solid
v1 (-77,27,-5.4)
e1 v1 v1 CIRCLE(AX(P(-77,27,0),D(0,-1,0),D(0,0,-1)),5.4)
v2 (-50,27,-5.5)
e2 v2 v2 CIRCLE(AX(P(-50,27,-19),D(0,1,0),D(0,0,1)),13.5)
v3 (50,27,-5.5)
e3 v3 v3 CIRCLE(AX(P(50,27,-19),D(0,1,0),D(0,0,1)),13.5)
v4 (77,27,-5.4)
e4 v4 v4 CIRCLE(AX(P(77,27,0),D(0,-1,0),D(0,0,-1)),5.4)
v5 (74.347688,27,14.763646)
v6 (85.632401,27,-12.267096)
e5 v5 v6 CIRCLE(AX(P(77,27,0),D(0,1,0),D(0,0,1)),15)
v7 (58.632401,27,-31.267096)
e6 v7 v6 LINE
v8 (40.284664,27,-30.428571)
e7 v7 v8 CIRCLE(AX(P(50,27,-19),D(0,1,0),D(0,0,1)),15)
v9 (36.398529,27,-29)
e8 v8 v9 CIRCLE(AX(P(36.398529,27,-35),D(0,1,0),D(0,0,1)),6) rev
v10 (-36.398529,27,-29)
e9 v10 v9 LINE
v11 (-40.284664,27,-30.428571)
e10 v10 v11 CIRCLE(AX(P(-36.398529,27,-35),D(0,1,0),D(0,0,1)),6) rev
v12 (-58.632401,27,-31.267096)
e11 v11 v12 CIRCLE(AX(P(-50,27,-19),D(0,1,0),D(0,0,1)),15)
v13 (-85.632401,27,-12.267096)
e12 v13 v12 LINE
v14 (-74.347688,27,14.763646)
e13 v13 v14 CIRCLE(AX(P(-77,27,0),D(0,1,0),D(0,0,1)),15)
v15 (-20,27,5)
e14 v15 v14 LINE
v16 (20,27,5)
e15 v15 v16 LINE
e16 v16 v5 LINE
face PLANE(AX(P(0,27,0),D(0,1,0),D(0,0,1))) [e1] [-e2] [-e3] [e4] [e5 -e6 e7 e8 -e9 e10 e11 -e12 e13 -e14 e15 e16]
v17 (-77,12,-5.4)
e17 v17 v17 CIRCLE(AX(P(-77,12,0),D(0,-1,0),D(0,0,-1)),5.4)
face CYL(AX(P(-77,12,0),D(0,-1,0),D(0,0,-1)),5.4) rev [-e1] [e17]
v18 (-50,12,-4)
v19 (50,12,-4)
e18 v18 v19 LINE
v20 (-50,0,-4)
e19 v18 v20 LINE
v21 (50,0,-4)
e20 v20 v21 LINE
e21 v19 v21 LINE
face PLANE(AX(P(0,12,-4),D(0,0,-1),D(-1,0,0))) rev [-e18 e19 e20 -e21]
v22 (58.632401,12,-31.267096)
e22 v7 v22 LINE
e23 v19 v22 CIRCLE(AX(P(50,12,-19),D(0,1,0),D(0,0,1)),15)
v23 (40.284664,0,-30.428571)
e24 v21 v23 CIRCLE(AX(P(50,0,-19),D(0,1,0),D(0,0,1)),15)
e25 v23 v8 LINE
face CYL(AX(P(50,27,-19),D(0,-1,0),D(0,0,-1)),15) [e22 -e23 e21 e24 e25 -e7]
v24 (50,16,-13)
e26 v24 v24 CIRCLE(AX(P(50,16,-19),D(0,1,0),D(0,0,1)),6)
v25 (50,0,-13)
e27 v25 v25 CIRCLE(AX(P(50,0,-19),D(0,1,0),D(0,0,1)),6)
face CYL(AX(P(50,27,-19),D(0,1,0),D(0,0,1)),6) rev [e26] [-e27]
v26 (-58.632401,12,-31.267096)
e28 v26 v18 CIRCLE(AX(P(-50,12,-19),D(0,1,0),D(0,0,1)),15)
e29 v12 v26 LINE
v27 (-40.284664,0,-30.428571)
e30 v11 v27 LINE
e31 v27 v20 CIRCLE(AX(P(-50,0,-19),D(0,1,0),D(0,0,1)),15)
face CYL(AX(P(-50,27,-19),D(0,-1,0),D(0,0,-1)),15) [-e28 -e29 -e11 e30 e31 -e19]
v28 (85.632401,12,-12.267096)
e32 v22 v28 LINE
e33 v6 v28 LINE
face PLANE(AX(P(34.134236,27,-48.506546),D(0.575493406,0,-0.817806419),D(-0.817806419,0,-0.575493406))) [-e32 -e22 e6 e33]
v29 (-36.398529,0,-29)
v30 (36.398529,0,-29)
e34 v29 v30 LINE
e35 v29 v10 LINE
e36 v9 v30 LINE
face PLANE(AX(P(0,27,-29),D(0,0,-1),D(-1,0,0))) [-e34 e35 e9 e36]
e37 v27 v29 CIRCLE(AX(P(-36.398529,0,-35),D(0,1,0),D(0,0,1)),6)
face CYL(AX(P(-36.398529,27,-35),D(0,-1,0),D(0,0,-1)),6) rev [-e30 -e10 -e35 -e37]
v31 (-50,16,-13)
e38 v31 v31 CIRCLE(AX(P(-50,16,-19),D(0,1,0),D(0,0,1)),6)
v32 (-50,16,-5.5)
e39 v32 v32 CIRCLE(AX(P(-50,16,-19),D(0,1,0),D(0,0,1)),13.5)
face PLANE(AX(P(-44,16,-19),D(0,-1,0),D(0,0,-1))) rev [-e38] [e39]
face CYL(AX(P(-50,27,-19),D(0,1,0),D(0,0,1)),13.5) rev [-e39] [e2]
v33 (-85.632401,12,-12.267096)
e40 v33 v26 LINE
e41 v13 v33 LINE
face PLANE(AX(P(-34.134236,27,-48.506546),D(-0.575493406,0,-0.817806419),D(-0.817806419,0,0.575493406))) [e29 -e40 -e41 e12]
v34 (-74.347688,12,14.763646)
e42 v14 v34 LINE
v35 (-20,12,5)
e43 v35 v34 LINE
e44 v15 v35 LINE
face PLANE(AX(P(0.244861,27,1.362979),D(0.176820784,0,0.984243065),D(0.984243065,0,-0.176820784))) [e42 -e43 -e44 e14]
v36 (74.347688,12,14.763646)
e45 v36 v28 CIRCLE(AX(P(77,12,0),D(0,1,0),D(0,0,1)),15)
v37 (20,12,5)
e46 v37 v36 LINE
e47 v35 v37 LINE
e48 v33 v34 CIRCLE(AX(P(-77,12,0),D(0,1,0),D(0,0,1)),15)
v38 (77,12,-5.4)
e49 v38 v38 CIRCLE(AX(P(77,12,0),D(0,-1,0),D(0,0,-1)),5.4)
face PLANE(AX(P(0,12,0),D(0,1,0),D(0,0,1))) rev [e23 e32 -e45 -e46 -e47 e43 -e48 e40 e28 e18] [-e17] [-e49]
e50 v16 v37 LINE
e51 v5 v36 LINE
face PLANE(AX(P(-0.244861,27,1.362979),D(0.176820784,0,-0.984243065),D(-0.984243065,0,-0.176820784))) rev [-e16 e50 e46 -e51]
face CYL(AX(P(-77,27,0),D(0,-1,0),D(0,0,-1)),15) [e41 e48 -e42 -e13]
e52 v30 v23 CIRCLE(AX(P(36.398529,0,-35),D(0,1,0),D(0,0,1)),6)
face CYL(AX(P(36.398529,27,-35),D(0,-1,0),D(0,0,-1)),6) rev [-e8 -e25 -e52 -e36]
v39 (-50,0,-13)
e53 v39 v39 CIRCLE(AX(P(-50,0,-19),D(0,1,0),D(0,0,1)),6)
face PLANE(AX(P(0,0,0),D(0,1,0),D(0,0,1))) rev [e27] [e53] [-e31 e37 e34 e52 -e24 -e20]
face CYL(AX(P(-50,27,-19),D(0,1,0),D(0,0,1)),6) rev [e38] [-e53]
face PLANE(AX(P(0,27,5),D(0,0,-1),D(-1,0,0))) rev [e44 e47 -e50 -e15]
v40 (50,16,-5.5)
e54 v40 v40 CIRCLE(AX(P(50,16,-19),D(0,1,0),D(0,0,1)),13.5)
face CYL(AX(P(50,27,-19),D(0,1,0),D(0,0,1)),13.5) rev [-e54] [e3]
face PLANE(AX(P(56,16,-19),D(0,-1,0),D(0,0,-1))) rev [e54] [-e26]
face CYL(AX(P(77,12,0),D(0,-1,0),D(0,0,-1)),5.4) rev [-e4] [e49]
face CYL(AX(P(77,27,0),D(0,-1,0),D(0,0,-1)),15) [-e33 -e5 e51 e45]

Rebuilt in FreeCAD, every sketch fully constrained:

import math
import FreeCAD as App
import Part
import Sketcher
Q = App.Units.Quantity


def edges_at(feature, points):
    """Names of the edges that pass closest to the given points."""
    edges = feature.Shape.Edges
    near = lambda p: min(range(len(edges)), key=lambda i: edges[i].distToShape(Part.Vertex(*p))[0])
    return sorted({f"Edge{near(p) + 1}" for p in points})

doc = App.newDocument("Part")
body = doc.addObject("PartDesign::Body", "Body")

# Sketch on XZ plane
sketch1 = body.newObject("Sketcher::SketchObject", "Sketch")
sketch1.AttachmentSupport = (doc.getObject("XZ_Plane"), [""])
sketch1.MapMode = "FlatFace"
sketch1.addGeometry(Part.LineSegment(App.Vector(-74, 15, 0), App.Vector(-20, 5, 0)), False)
sketch1.addGeometry(Part.LineSegment(App.Vector(-20, 5, 0), App.Vector(20, 5, 0)), False)
sketch1.addGeometry(Part.LineSegment(App.Vector(20, 5, 0), App.Vector(74, 15, 0)), False)
sketch1.addGeometry(Part.ArcOfCircle(Part.Circle(App.Vector(77, 0, 0), App.Vector(0, 0, 1), 15), math.radians(-55), math.radians(100)), False)
sketch1.addGeometry(Part.LineSegment(App.Vector(86, -12, 0), App.Vector(59, -31, 0)), False)
sketch1.addGeometry(Part.ArcOfCircle(Part.Circle(App.Vector(50, -19, 0), App.Vector(0, 0, 1), 15), math.radians(-138), math.radians(-55)), False)
sketch1.addGeometry(Part.LineSegment(App.Vector(39, -29, 0), App.Vector(-39, -29, 0)), False)
sketch1.addGeometry(Part.ArcOfCircle(Part.Circle(App.Vector(-50, -19, 0), App.Vector(0, 0, 1), 15), math.radians(-125), math.radians(-42)), False)
sketch1.addGeometry(Part.LineSegment(App.Vector(-59, -31, 0), App.Vector(-86, -12, 0)), False)
sketch1.addGeometry(Part.ArcOfCircle(Part.Circle(App.Vector(-77, 0, 0), App.Vector(0, 0, 1), 15), math.radians(80), math.radians(235)), False)
sketch1.addConstraint(Sketcher.Constraint("Coincident", 0, 2, 1, 1))
sketch1.addConstraint(Sketcher.Constraint("Coincident", 1, 2, 2, 1))
sketch1.addConstraint(Sketcher.Constraint("Tangent", 2, 2, 3, 2))
sketch1.addConstraint(Sketcher.Constraint("Tangent", 3, 1, 4, 1))
sketch1.addConstraint(Sketcher.Constraint("Tangent", 4, 2, 5, 2))
sketch1.addConstraint(Sketcher.Constraint("Coincident", 5, 1, 6, 1))
sketch1.addConstraint(Sketcher.Constraint("Coincident", 6, 2, 7, 2))
sketch1.addConstraint(Sketcher.Constraint("Tangent", 7, 1, 8, 1))
sketch1.addConstraint(Sketcher.Constraint("Tangent", 8, 2, 9, 2))
sketch1.addConstraint(Sketcher.Constraint("Tangent", 9, 1, 0, 1))
sketch1.addConstraint(Sketcher.Constraint("Horizontal", 1))
sketch1.addConstraint(Sketcher.Constraint("Horizontal", 6))
sketch1.addConstraint(Sketcher.Constraint("Equal", 3, 5))
sketch1.addConstraint(Sketcher.Constraint("Equal", 5, 7))
sketch1.addConstraint(Sketcher.Constraint("Equal", 7, 9))
sketch1.addConstraint(Sketcher.Constraint("Symmetric", 3, 3, 9, 3, -1, 1))
sketch1.addConstraint(Sketcher.Constraint("Symmetric", 5, 3, 7, 3, -2))
sketch1.addConstraint(Sketcher.Constraint("Symmetric", 2, 2, 9, 1, -2))
sketch1.addConstraint(Sketcher.Constraint("Radius", 3, Q("15 mm")))
sketch1.addConstraint(Sketcher.Constraint("DistanceX", 1, 1, 1, 2, Q("40 mm")))
sketch1.addConstraint(Sketcher.Constraint("DistanceX", -1, 1, 3, 3, Q("77 mm")))
sketch1.addConstraint(Sketcher.Constraint("DistanceX", -1, 1, 5, 3, Q("50 mm")))
sketch1.addConstraint(Sketcher.Constraint("DistanceY", 5, 3, -1, 1, Q("19 mm")))
sketch1.addConstraint(Sketcher.Constraint("DistanceY", -1, 1, 0, 2, Q("5 mm")))
sketch1.addConstraint(Sketcher.Constraint("DistanceY", 5, 1, -1, 1, Q("29 mm")))
pad1 = body.newObject("PartDesign::Pad", "Pad")
pad1.Profile = sketch1
pad1.Length = 27
pad1.Reversed = True

# Sketch on XZ plane
sketch2 = body.newObject("Sketcher::SketchObject", "Sketch001")
sketch2.AttachmentSupport = (doc.getObject("XZ_Plane"), [""])
sketch2.MapMode = "FlatFace"
sketch2.addGeometry(Part.LineSegment(App.Vector(-74, 15, 0), App.Vector(-20, 5, 0)), False)
sketch2.addGeometry(Part.LineSegment(App.Vector(-20, 5, 0), App.Vector(20, 5, 0)), False)
sketch2.addGeometry(Part.LineSegment(App.Vector(20, 5, 0), App.Vector(74, 15, 0)), False)
sketch2.addGeometry(Part.ArcOfCircle(Part.Circle(App.Vector(77, 0, 0), App.Vector(0, 0, 1), 15), math.radians(100), math.radians(305)), False)
sketch2.addGeometry(Part.LineSegment(App.Vector(86, -12, 0), App.Vector(59, -31, 0)), False)
sketch2.addGeometry(Part.ArcOfCircle(Part.Circle(App.Vector(50, -19, 0), App.Vector(0, 0, 1), 15), math.radians(-55), math.radians(0)), False)
sketch2.addGeometry(Part.ArcOfCircle(Part.Circle(App.Vector(50, -19, 0), App.Vector(0, 0, 1), 15), math.radians(0), math.radians(90)), False)
sketch2.addGeometry(Part.LineSegment(App.Vector(50, -4, 0), App.Vector(-50, -4, 0)), False)
sketch2.addGeometry(Part.ArcOfCircle(Part.Circle(App.Vector(-50, -19, 0), App.Vector(0, 0, 1), 15), math.radians(90), math.radians(235)), False)
sketch2.addGeometry(Part.LineSegment(App.Vector(-59, -31, 0), App.Vector(-86, -12, 0)), False)
sketch2.addGeometry(Part.ArcOfCircle(Part.Circle(App.Vector(-77, 0, 0), App.Vector(0, 0, 1), 15), math.radians(-125), math.radians(0)), False)
sketch2.addGeometry(Part.ArcOfCircle(Part.Circle(App.Vector(-77, 0, 0), App.Vector(0, 0, 1), 15), math.radians(0), math.radians(80)), False)
sketch2.addGeometry(Part.ArcOfCircle(Part.Circle(App.Vector(77, 0, 0), App.Vector(0, 0, 1), 15), math.radians(-55), math.radians(0)), False)
sketch2.addGeometry(Part.ArcOfCircle(Part.Circle(App.Vector(77, 0, 0), App.Vector(0, 0, 1), 15), math.radians(100), math.radians(305)), False)
sketch2.addGeometry(Part.ArcOfCircle(Part.Circle(App.Vector(77, 0, 0), App.Vector(0, 0, 1), 15), math.radians(0), math.radians(100)), False)
sketch2.addGeometry(Part.ArcOfCircle(Part.Circle(App.Vector(-77, 0, 0), App.Vector(0, 0, 1), 15), math.radians(-125), math.radians(0)), False)
sketch2.addGeometry(Part.ArcOfCircle(Part.Circle(App.Vector(-77, 0, 0), App.Vector(0, 0, 1), 15), math.radians(80), math.radians(235)), False)
sketch2.addGeometry(Part.ArcOfCircle(Part.Circle(App.Vector(-77, 0, 0), App.Vector(0, 0, 1), 15), math.radians(0), math.radians(80)), False)
sketch2.addConstraint(Sketcher.Constraint("Coincident", 0, 2, 1, 1))
sketch2.addConstraint(Sketcher.Constraint("Coincident", 1, 2, 2, 1))
sketch2.addConstraint(Sketcher.Constraint("Tangent", 2, 2, 3, 1))
sketch2.addConstraint(Sketcher.Constraint("Tangent", 3, 2, 4, 1))
sketch2.addConstraint(Sketcher.Constraint("Tangent", 4, 2, 5, 1))
sketch2.addConstraint(Sketcher.Constraint("Tangent", 5, 2, 6, 1))
sketch2.addConstraint(Sketcher.Constraint("Tangent", 6, 2, 7, 1))
sketch2.addConstraint(Sketcher.Constraint("Tangent", 7, 2, 8, 1))
sketch2.addConstraint(Sketcher.Constraint("Tangent", 8, 2, 9, 1))
sketch2.addConstraint(Sketcher.Constraint("Tangent", 9, 2, 10, 1))
sketch2.addConstraint(Sketcher.Constraint("Tangent", 10, 2, 11, 1))
sketch2.addConstraint(Sketcher.Constraint("Tangent", 11, 2, 0, 1))
sketch2.addConstraint(Sketcher.Constraint("Tangent", 12, 1, 13, 2))
sketch2.addConstraint(Sketcher.Constraint("Tangent", 13, 1, 14, 2))
sketch2.addConstraint(Sketcher.Constraint("Tangent", 14, 1, 12, 2))
sketch2.addConstraint(Sketcher.Constraint("Tangent", 15, 1, 16, 2))
sketch2.addConstraint(Sketcher.Constraint("Tangent", 16, 1, 17, 2))
sketch2.addConstraint(Sketcher.Constraint("Tangent", 17, 1, 15, 2))
sketch2.addConstraint(Sketcher.Constraint("Horizontal", 1))
sketch2.addConstraint(Sketcher.Constraint("Horizontal", 7))
sketch2.addConstraint(Sketcher.Constraint("Coincident", 12, 3, 3, 3))
sketch2.addConstraint(Sketcher.Constraint("Coincident", 15, 3, 10, 3))
sketch2.addConstraint(Sketcher.Constraint("Coincident", 12, 1, 3, 2))
sketch2.addConstraint(Sketcher.Constraint("Coincident", 15, 1, 9, 2))
sketch2.addConstraint(Sketcher.Constraint("Coincident", 16, 1, 11, 2))
sketch2.addConstraint(Sketcher.Constraint("Equal", 3, 5))
sketch2.addConstraint(Sketcher.Constraint("Equal", 5, 6))
sketch2.addConstraint(Sketcher.Constraint("Equal", 6, 8))
sketch2.addConstraint(Sketcher.Constraint("Equal", 8, 10))
sketch2.addConstraint(Sketcher.Constraint("Symmetric", 3, 3, 10, 3, -1, 1))
sketch2.addConstraint(Sketcher.Constraint("Symmetric", 4, 2, 8, 2, -2))
sketch2.addConstraint(Sketcher.Constraint("PointOnObject", 10, 2, -1))
sketch2.addConstraint(Sketcher.Constraint("PointOnObject", 14, 1, -1))
sketch2.addConstraint(Sketcher.Constraint("PointOnObject", 17, 1, -1))
sketch2.addConstraint(Sketcher.Constraint("Horizontal", 8, 3, 5, 2))
sketch2.addConstraint(Sketcher.Constraint("Horizontal", 2, 2, 11, 2))
sketch2.addConstraint(Sketcher.Constraint("Horizontal", 11, 2, 13, 1))
sketch2.addConstraint(Sketcher.Constraint("Radius", 3, Q("15 mm")))
sketch2.addConstraint(Sketcher.Constraint("DistanceX", 1, 1, 1, 2, Q("40 mm")))
sketch2.addConstraint(Sketcher.Constraint("DistanceX", 7, 2, 7, 1, Q("100 mm")))
sketch2.addConstraint(Sketcher.Constraint("DistanceX", -1, 1, 3, 3, Q("77 mm")))
sketch2.addConstraint(Sketcher.Constraint("DistanceY", 5, 3, -1, 1, Q("19 mm")))
sketch2.addConstraint(Sketcher.Constraint("DistanceY", -1, 1, 0, 2, Q("5 mm")))
pocket1 = body.newObject("PartDesign::Pocket", "Pocket")
pocket1.Profile = sketch2
pocket1.Length = 12

# Sketch on XZ plane
sketch3 = body.newObject("Sketcher::SketchObject", "Sketch002")
sketch3.AttachmentSupport = (doc.getObject("XZ_Plane"), [""])
sketch3.MapMode = "FlatFace"
sketch3.AttachmentOffset = App.Placement(App.Vector(0, 0, -12), App.Rotation())
sketch3.addGeometry(Part.Circle(App.Vector(77, 0, 0), App.Vector(0, 0, 1), 5), False)
sketch3.addGeometry(Part.Circle(App.Vector(-77, 0, 0), App.Vector(0, 0, 1), 5), False)
sketch3.addConstraint(Sketcher.Constraint("Equal", 0, 1))
sketch3.addConstraint(Sketcher.Constraint("Symmetric", 0, 3, 1, 3, -1, 1))
sketch3.addConstraint(Sketcher.Constraint("PointOnObject", 0, 3, -1))
sketch3.addConstraint(Sketcher.Constraint("Diameter", 0, Q("10.8 mm")))
sketch3.addConstraint(Sketcher.Constraint("DistanceX", -1, 1, 0, 3, Q("77 mm")))
doc.recompute()
hole = body.newObject("PartDesign::Hole", "Hole")
hole.Profile = sketch3
hole.ThreadType = "None"
hole.Diameter = 10.8
hole.DepthType = "ThroughAll"

# Sketch on XZ plane
sketch4 = body.newObject("Sketcher::SketchObject", "Sketch003")
sketch4.AttachmentSupport = (doc.getObject("XZ_Plane"), [""])
sketch4.MapMode = "FlatFace"
sketch4.AttachmentOffset = App.Placement(App.Vector(0, 0, -27), App.Rotation())
sketch4.addGeometry(Part.Circle(App.Vector(-50, -19, 0), App.Vector(0, 0, 1), 6), False)
sketch4.addGeometry(Part.Circle(App.Vector(50, -19, 0), App.Vector(0, 0, 1), 6), False)
sketch4.addConstraint(Sketcher.Constraint("Equal", 0, 1))
sketch4.addConstraint(Sketcher.Constraint("Symmetric", 0, 3, 1, 3, -2))
sketch4.addConstraint(Sketcher.Constraint("Diameter", 0, Q("12 mm")))
sketch4.addConstraint(Sketcher.Constraint("DistanceX", 0, 3, -1, 1, Q("50 mm")))
sketch4.addConstraint(Sketcher.Constraint("DistanceY", 0, 3, -1, 1, Q("19 mm")))
doc.recompute()
hole2 = body.newObject("PartDesign::Hole", "Hole001")
hole2.Profile = sketch4
hole2.ThreadType = "None"
hole2.Diameter = 12
hole2.DepthType = "Dimension"
hole2.Depth = 27
hole2.DrillPoint = "Angled"
hole2.DrillPointAngle = 118
hole2.HoleCutType = "Counterbore"
hole2.HoleCutDiameter = 27
hole2.HoleCutDepth = 11
hole2.Reversed = True
doc.recompute()

fillet = body.newObject("PartDesign::Fillet", "Fillet")
fillet.Base = (hole2, edges_at(hole2, [(38.82, 13.5, -29), (-38.82, 13.5, -29)]))
fillet.Radius = 6

doc.recompute()
